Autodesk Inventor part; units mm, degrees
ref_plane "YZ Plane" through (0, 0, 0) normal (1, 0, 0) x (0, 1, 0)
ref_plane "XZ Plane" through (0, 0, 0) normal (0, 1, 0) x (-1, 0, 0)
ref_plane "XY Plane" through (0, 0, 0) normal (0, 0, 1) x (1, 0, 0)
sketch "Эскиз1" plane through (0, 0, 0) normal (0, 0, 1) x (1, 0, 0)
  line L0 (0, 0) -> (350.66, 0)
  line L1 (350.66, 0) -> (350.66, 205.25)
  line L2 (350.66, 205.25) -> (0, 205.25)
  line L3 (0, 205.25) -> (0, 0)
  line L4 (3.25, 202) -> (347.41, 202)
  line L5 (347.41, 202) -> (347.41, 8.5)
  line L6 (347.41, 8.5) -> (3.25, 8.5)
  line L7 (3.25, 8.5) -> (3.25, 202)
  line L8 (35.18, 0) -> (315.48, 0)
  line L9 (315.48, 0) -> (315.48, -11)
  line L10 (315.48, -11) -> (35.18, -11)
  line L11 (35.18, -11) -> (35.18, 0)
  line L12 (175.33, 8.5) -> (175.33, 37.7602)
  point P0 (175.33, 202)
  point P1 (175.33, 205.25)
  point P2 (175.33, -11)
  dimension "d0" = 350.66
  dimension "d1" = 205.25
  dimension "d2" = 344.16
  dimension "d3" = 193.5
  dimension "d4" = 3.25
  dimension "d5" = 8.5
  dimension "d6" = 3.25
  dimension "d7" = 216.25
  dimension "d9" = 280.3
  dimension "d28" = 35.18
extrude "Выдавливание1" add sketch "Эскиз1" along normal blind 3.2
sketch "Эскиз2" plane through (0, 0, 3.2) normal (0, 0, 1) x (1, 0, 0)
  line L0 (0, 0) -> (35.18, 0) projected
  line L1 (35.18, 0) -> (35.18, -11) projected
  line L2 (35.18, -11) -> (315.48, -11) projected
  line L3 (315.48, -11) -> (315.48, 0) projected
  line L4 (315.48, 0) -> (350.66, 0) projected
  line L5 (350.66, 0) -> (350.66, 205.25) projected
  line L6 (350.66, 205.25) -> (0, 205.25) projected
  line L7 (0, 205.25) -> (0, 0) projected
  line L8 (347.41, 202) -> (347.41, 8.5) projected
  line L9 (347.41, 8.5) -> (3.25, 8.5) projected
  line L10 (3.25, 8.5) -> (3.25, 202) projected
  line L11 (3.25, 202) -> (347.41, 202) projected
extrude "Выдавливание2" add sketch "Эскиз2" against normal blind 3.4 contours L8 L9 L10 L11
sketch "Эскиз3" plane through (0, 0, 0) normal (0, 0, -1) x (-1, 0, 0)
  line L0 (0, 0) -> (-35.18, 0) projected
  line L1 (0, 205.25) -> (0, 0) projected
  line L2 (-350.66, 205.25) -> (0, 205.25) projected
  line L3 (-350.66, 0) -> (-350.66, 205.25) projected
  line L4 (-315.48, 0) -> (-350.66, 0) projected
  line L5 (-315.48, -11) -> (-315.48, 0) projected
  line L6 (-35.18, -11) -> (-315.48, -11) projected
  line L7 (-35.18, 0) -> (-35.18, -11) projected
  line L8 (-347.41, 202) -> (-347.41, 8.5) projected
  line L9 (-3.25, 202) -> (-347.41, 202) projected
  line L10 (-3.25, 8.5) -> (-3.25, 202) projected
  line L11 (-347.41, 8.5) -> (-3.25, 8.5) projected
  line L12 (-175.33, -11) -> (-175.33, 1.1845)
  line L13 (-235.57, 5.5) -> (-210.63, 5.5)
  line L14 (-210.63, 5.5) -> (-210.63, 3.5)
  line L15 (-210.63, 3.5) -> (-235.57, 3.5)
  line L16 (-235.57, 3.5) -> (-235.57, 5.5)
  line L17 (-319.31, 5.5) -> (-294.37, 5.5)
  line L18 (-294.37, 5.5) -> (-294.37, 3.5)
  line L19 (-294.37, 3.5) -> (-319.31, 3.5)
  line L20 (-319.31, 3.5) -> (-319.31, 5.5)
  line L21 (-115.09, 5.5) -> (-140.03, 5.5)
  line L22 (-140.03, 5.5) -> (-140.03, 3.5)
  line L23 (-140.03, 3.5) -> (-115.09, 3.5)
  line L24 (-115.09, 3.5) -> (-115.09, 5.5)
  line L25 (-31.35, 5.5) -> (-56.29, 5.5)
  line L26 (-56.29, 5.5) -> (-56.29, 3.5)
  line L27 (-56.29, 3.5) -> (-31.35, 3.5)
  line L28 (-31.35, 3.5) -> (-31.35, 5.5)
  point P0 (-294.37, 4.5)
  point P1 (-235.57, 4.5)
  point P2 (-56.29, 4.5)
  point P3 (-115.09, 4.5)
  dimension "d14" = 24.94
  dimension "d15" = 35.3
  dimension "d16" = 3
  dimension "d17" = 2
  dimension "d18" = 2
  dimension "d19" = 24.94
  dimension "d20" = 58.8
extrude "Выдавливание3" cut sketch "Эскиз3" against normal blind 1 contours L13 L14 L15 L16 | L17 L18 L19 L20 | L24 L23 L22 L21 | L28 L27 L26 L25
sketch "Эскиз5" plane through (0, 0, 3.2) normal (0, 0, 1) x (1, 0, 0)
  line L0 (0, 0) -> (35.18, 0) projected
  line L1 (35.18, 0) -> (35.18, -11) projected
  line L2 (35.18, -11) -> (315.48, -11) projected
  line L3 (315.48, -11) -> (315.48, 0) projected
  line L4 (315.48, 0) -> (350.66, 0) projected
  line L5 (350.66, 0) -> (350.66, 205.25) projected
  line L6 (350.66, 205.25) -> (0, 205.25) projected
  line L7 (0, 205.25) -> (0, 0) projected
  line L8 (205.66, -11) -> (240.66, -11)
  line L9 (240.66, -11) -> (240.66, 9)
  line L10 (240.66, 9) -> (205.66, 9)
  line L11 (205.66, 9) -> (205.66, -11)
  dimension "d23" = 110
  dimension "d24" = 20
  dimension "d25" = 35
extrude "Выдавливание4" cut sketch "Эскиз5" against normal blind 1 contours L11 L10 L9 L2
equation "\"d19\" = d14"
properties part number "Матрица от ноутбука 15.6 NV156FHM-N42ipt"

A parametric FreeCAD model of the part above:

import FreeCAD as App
import Part
import Sketcher

doc = App.newDocument("Part")
params = doc.addObject("Spreadsheet::Sheet", "Params")
for row, (alias, value) in enumerate([
    ("sketch1_width", "280.3 mm"),
    ("sketch1_height", "193.5 mm"),
    ("sketch1_width2", "35.18 mm"),
    ("sketch1_width3", "344.16 mm"),
    ("sketch1_height2", "205.25 mm"),
    ("pad1_length", "3.2 mm"),
    ("sketch2_height", "193.5 mm"),
    ("sketch2_width", "344.16 mm"),
    ("pad2_length", "3.4 mm"),
    ("sketch3_height", "2 mm"),
    ("sketch3_width", "24.94 mm"),
    ("pocket1_length", "1 mm"),
    ("sketch4_width", "35 mm"),
    ("sketch4_height", "20 mm"),
    ("pocket2_length", "1 mm"),
], start=1):
    params.set(f"A{row}", alias)
    params.set(f"B{row}", "=" + value)
    params.setAlias(f"B{row}", alias)

body = doc.addObject("PartDesign::Body", "Body")

sketch1 = doc.addObject("Sketcher::SketchObject", "Sketch")
body.addObject(sketch1)
sketch1.AttachmentSupport = (doc.XY_Plane, [""])
sketch1.MapMode = "FlatFace"
sketch1.addGeometry([
    Part.LineSegment(App.Vector(0, 205.25, 0), App.Vector(0, 0, 0)),
    Part.LineSegment(App.Vector(0, 0, 0), App.Vector(35.18, 0, 0)),
    Part.LineSegment(App.Vector(35.18, 0, 0), App.Vector(35.18, -11, 0)),
    Part.LineSegment(App.Vector(35.18, -11, 0), App.Vector(315.48, -11, 0)),
    Part.LineSegment(App.Vector(315.48, -11, 0), App.Vector(315.48, 0, 0)),
    Part.LineSegment(App.Vector(315.48, 0, 0), App.Vector(350.66, 0, 0)),
    Part.LineSegment(App.Vector(350.66, 0, 0), App.Vector(350.66, 205.25, 0)),
    Part.LineSegment(App.Vector(350.66, 205.25, 0), App.Vector(0, 205.25, 0)),
    Part.LineSegment(App.Vector(3.25, 8.5, 0), App.Vector(3.25, 202, 0)),
    Part.LineSegment(App.Vector(3.25, 202, 0), App.Vector(347.41, 202, 0)),
    Part.LineSegment(App.Vector(347.41, 202, 0), App.Vector(347.41, 8.5, 0)),
    Part.LineSegment(App.Vector(347.41, 8.5, 0), App.Vector(3.25, 8.5, 0)),
], False)
sketch1.addConstraint([
    Sketcher.Constraint("Coincident", 0, 2, 1, 1),
    Sketcher.Constraint("Coincident", 1, 2, 2, 1),
    Sketcher.Constraint("Coincident", 2, 2, 3, 1),
    Sketcher.Constraint("Coincident", 3, 2, 4, 1),
    Sketcher.Constraint("Coincident", 4, 2, 5, 1),
    Sketcher.Constraint("Coincident", 5, 2, 6, 1),
    Sketcher.Constraint("Coincident", 6, 2, 7, 1),
    Sketcher.Constraint("Coincident", 7, 2, 0, 1),
    Sketcher.Constraint("Coincident", 8, 2, 9, 1),
    Sketcher.Constraint("Coincident", 9, 2, 10, 1),
    Sketcher.Constraint("Coincident", 10, 2, 11, 1),
    Sketcher.Constraint("Coincident", 11, 2, 8, 1),
    Sketcher.Constraint("Vertical", 0),
    Sketcher.Constraint("Horizontal", 1),
    Sketcher.Constraint("Vertical", 2),
    Sketcher.Constraint("Horizontal", 3),
    Sketcher.Constraint("Vertical", 4),
    Sketcher.Constraint("Horizontal", 5),
    Sketcher.Constraint("Vertical", 6),
    Sketcher.Constraint("Horizontal", 7),
    Sketcher.Constraint("Vertical", 8),
    Sketcher.Constraint("Horizontal", 9),
    Sketcher.Constraint("Vertical", 10),
    Sketcher.Constraint("Horizontal", 11),
    Sketcher.Constraint("Coincident", 0, 2, -1, 1),
    Sketcher.Constraint("PointOnObject", 4, 2, -1),
    Sketcher.Constraint("Equal", 1, 5),
    Sketcher.Constraint("DistanceX", 3, 1, 3, 2, 280.3),
    Sketcher.Constraint("DistanceY", 8, 1, 8, 2, 193.5),
    Sketcher.Constraint("DistanceX", 1, 1, 1, 2, 35.18),
    Sketcher.Constraint("DistanceX", 9, 1, 9, 2, 344.16),
    Sketcher.Constraint("DistanceY", 0, 2, 0, 1, 205.25),
    Sketcher.Constraint("DistanceY", -1, 1, 10, 2, 8.5),
    Sketcher.Constraint("DistanceY", 2, 2, 2, 1, 11.0),
    Sketcher.Constraint("DistanceX", -1, 1, 8, 2, 3.25),
])
sketch1.setExpression("Constraints[27]", "Params.sketch1_width")
sketch1.setExpression("Constraints[28]", "Params.sketch1_height")
sketch1.setExpression("Constraints[29]", "Params.sketch1_width2")
sketch1.setExpression("Constraints[30]", "Params.sketch1_width3")
sketch1.setExpression("Constraints[31]", "Params.sketch1_height2")
pad1 = doc.addObject("PartDesign::Pad", "Pad")
body.addObject(pad1)
pad1.Profile = sketch1
pad1.setExpression("Length", "Params.pad1_length")

sketch2 = doc.addObject("Sketcher::SketchObject", "Sketch001")
body.addObject(sketch2)
sketch2.AttachmentSupport = (doc.XY_Plane, [""])
sketch2.MapMode = "FlatFace"
sketch2.AttachmentOffset = App.Placement(App.Vector(0, 0, 3.2), App.Rotation())
sketch2.addGeometry([
    Part.LineSegment(App.Vector(347.41, 8.5, 0), App.Vector(347.41, 202, 0)),
    Part.LineSegment(App.Vector(347.41, 202, 0), App.Vector(3.25, 202, 0)),
    Part.LineSegment(App.Vector(3.25, 202, 0), App.Vector(3.25, 8.5, 0)),
    Part.LineSegment(App.Vector(3.25, 8.5, 0), App.Vector(347.41, 8.5, 0)),
], False)
sketch2.addConstraint([
    Sketcher.Constraint("Coincident", 0, 2, 1, 1),
    Sketcher.Constraint("Coincident", 1, 2, 2, 1),
    Sketcher.Constraint("Coincident", 2, 2, 3, 1),
    Sketcher.Constraint("Coincident", 3, 2, 0, 1),
    Sketcher.Constraint("Vertical", 0),
    Sketcher.Constraint("Horizontal", 1),
    Sketcher.Constraint("Vertical", 2),
    Sketcher.Constraint("Horizontal", 3),
    Sketcher.Constraint("DistanceY", 0, 1, 0, 2, 193.5),
    Sketcher.Constraint("DistanceY", -1, 1, 0, 2, 202.0),
    Sketcher.Constraint("DistanceX", 1, 2, 1, 1, 344.16),
    Sketcher.Constraint("DistanceX", -1, 1, 0, 2, 347.41),
])
sketch2.setExpression("Constraints[8]", "Params.sketch2_height")
sketch2.setExpression("Constraints[10]", "Params.sketch2_width")
pad2 = doc.addObject("PartDesign::Pad", "Pad001")
body.addObject(pad2)
pad2.Profile = sketch2
pad2.setExpression("Length", "Params.pad2_length")
pad2.Reversed = True

sketch3 = doc.addObject("Sketcher::SketchObject", "Sketch002")
body.addObject(sketch3)
sketch3.AttachmentSupport = (doc.XY_Plane, [""])
sketch3.MapMode = "FlatFace"
sketch3.addGeometry([
    Part.LineSegment(App.Vector(210.63, 5.5, 0), App.Vector(235.57, 5.5, 0)),
    Part.LineSegment(App.Vector(235.57, 5.5, 0), App.Vector(235.57, 3.5, 0)),
    Part.LineSegment(App.Vector(235.57, 3.5, 0), App.Vector(210.63, 3.5, 0)),
    Part.LineSegment(App.Vector(210.63, 3.5, 0), App.Vector(210.63, 5.5, 0)),
    Part.LineSegment(App.Vector(294.37, 5.5, 0), App.Vector(319.31, 5.5, 0)),
    Part.LineSegment(App.Vector(319.31, 5.5, 0), App.Vector(319.31, 3.5, 0)),
    Part.LineSegment(App.Vector(319.31, 3.5, 0), App.Vector(294.37, 3.5, 0)),
    Part.LineSegment(App.Vector(294.37, 3.5, 0), App.Vector(294.37, 5.5, 0)),
    Part.LineSegment(App.Vector(115.09, 3.5, 0), App.Vector(115.09, 5.5, 0)),
    Part.LineSegment(App.Vector(115.09, 5.5, 0), App.Vector(140.03, 5.5, 0)),
    Part.LineSegment(App.Vector(140.03, 5.5, 0), App.Vector(140.03, 3.5, 0)),
    Part.LineSegment(App.Vector(140.03, 3.5, 0), App.Vector(115.09, 3.5, 0)),
    Part.LineSegment(App.Vector(31.35, 3.5, 0), App.Vector(31.35, 5.5, 0)),
    Part.LineSegment(App.Vector(31.35, 5.5, 0), App.Vector(56.29, 5.5, 0)),
    Part.LineSegment(App.Vector(56.29, 5.5, 0), App.Vector(56.29, 3.5, 0)),
    Part.LineSegment(App.Vector(56.29, 3.5, 0), App.Vector(31.35, 3.5, 0)),
], False)
sketch3.addConstraint([
    Sketcher.Constraint("Coincident", 0, 2, 1, 1),
    Sketcher.Constraint("Coincident", 1, 2, 2, 1),
    Sketcher.Constraint("Coincident", 2, 2, 3, 1),
    Sketcher.Constraint("Coincident", 3, 2, 0, 1),
    Sketcher.Constraint("Coincident", 4, 2, 5, 1),
    Sketcher.Constraint("Coincident", 5, 2, 6, 1),
    Sketcher.Constraint("Coincident", 6, 2, 7, 1),
    Sketcher.Constraint("Coincident", 7, 2, 4, 1),
    Sketcher.Constraint("Coincident", 8, 2, 9, 1),
    Sketcher.Constraint("Coincident", 9, 2, 10, 1),
    Sketcher.Constraint("Coincident", 10, 2, 11, 1),
    Sketcher.Constraint("Coincident", 11, 2, 8, 1),
    Sketcher.Constraint("Coincident", 12, 2, 13, 1),
    Sketcher.Constraint("Coincident", 13, 2, 14, 1),
    Sketcher.Constraint("Coincident", 14, 2, 15, 1),
    Sketcher.Constraint("Coincident", 15, 2, 12, 1),
    Sketcher.Constraint("Horizontal", 0),
    Sketcher.Constraint("Vertical", 1),
    Sketcher.Constraint("Horizontal", 2),
    Sketcher.Constraint("Vertical", 3),
    Sketcher.Constraint("Horizontal", 4),
    Sketcher.Constraint("Vertical", 5),
    Sketcher.Constraint("Horizontal", 6),
    Sketcher.Constraint("Vertical", 7),
    Sketcher.Constraint("Vertical", 8),
    Sketcher.Constraint("Horizontal", 9),
    Sketcher.Constraint("Vertical", 10),
    Sketcher.Constraint("Horizontal", 11),
    Sketcher.Constraint("Vertical", 12),
    Sketcher.Constraint("Horizontal", 13),
    Sketcher.Constraint("Vertical", 14),
    Sketcher.Constraint("Horizontal", 15),
    Sketcher.Constraint("Horizontal", 3, 2, 4, 2),
    Sketcher.Constraint("Horizontal", 2, 2, 5, 2),
    Sketcher.Constraint("Horizontal", 7, 2, 8, 2),
    Sketcher.Constraint("Horizontal", 6, 2, 10, 2),
    Sketcher.Constraint("Horizontal", 9, 2, 12, 2),
    Sketcher.Constraint("Horizontal", 11, 2, 14, 2),
    Sketcher.Constraint("Equal", 2, 4),
    Sketcher.Constraint("Equal", 6, 9),
    Sketcher.Constraint("Equal", 11, 13),
    Sketcher.Constraint("DistanceY", 1, 2, 1, 1, 2.0),
    Sketcher.Constraint("DistanceX", 0, 1, 0, 2, 24.94),
    Sketcher.Constraint("DistanceX", 1, 2, 6, 2, 58.8),
    Sketcher.Constraint("DistanceX", 13, 2, 8, 2, 58.8),
    Sketcher.Constraint("DistanceY", -1, 1, 0, 2, 5.5),
    Sketcher.Constraint("DistanceX", 9, 2, 3, 2, 70.6),
    Sketcher.Constraint("DistanceX", -1, 1, 0, 2, 235.57),
])
sketch3.setExpression("Constraints[41]", "Params.sketch3_height")
sketch3.setExpression("Constraints[42]", "Params.sketch3_width")
pocket1 = doc.addObject("PartDesign::Pocket", "Pocket")
body.addObject(pocket1)
pocket1.Profile = sketch3
pocket1.setExpression("Length", "Params.pocket1_length")
pocket1.Reversed = True

sketch4 = doc.addObject("Sketcher::SketchObject", "Sketch003")
body.addObject(sketch4)
sketch4.AttachmentSupport = (doc.XY_Plane, [""])
sketch4.MapMode = "FlatFace"
sketch4.AttachmentOffset = App.Placement(App.Vector(0, 0, 3.2), App.Rotation())
sketch4.addGeometry([
    Part.LineSegment(App.Vector(205.66, 9, 0), App.Vector(205.66, -11, 0)),
    Part.LineSegment(App.Vector(205.66, -11, 0), App.Vector(240.66, -11, 0)),
    Part.LineSegment(App.Vector(240.66, -11, 0), App.Vector(240.66, 9, 0)),
    Part.LineSegment(App.Vector(240.66, 9, 0), App.Vector(205.66, 9, 0)),
], False)
sketch4.addConstraint([
    Sketcher.Constraint("Coincident", 0, 2, 1, 1),
    Sketcher.Constraint("Coincident", 1, 2, 2, 1),
    Sketcher.Constraint("Coincident", 2, 2, 3, 1),
    Sketcher.Constraint("Coincident", 3, 2, 0, 1),
    Sketcher.Constraint("Vertical", 0),
    Sketcher.Constraint("Horizontal", 1),
    Sketcher.Constraint("Vertical", 2),
    Sketcher.Constraint("Horizontal", 3),
    Sketcher.Constraint("DistanceX", 1, 1, 1, 2, 35.0),
    Sketcher.Constraint("DistanceY", 0, 2, 0, 1, 20.0),
    Sketcher.Constraint("DistanceY", 0, 2, -1, 1, 11.0),
    Sketcher.Constraint("DistanceX", -1, 1, 0, 2, 205.66),
])
sketch4.setExpression("Constraints[8]", "Params.sketch4_width")
sketch4.setExpression("Constraints[9]", "Params.sketch4_height")
pocket2 = doc.addObject("PartDesign::Pocket", "Pocket001")
body.addObject(pocket2)
pocket2.Profile = sketch4
pocket2.setExpression("Length", "Params.pocket2_length")

doc.recompute()
